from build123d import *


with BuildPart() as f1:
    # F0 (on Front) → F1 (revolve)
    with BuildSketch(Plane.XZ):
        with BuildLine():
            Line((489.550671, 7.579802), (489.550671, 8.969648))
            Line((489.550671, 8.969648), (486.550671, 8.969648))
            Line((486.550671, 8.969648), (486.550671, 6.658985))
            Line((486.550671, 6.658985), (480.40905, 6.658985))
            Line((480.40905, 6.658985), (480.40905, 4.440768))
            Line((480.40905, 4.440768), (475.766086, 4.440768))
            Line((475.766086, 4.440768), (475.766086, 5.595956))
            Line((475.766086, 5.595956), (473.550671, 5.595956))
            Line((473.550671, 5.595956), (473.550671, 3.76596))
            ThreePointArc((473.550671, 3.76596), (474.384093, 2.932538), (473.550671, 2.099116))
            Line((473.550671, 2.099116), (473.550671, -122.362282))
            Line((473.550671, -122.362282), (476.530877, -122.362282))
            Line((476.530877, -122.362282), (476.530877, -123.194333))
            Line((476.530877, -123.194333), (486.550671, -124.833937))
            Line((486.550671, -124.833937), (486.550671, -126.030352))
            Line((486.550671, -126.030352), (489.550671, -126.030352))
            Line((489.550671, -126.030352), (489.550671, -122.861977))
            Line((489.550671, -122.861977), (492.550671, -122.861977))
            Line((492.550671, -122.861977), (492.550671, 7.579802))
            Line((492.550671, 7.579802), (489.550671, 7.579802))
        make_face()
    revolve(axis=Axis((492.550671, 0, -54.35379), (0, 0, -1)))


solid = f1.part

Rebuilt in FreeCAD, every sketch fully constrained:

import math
import FreeCAD as App
import Part
import Sketcher

doc = App.newDocument("Part")
params = doc.addObject("Spreadsheet::Sheet", "Params")
for row, (alias, value) in enumerate([
    ("sketch1_width", "3 mm"),
    ("sketch1_height", "135 mm"),
    ("revolution_angle", "360 deg"),
], start=1):
    params.set(f"A{row}", alias)
    params.set(f"B{row}", "=" + value)
    params.setAlias(f"B{row}", alias)

body = doc.addObject("PartDesign::Body", "Body")

# Sketch on XZ plane
sketch1 = body.newObject("Sketcher::SketchObject", "Sketch")
sketch1.AttachmentSupport = (doc.getObject("XZ_Plane"), [""])
sketch1.MapMode = "FlatFace"
sketch1.addGeometry([
    Part.LineSegment(App.Vector(489.6, 7.6, 0), App.Vector(489.6, 9, 0)),  # 0
    Part.LineSegment(App.Vector(489.6, 9, 0), App.Vector(486.6, 9, 0)),  # 1
    Part.LineSegment(App.Vector(486.6, 9, 0), App.Vector(486.6, 6.7, 0)),  # 2
    Part.LineSegment(App.Vector(486.6, 6.7, 0), App.Vector(480.4, 6.7, 0)),  # 3
    Part.LineSegment(App.Vector(480.4, 6.7, 0), App.Vector(480.4, 4.4, 0)),  # 4
    Part.LineSegment(App.Vector(480.4, 4.4, 0), App.Vector(475.8, 4.4, 0)),  # 5
    Part.LineSegment(App.Vector(475.8, 4.4, 0), App.Vector(475.8, 5.6, 0)),  # 6
    Part.LineSegment(App.Vector(475.8, 5.6, 0), App.Vector(473.6, 5.6, 0)),  # 7
    Part.LineSegment(App.Vector(473.6, 5.6, 0), App.Vector(473.6, 3.8, 0)),  # 8
    Part.ArcOfCircle(Part.Circle(App.Vector(473.6, 2.9, 0), App.Vector(0, 0, 1), 0.8), math.radians(-90), math.radians(90)),  # 9
    Part.LineSegment(App.Vector(473.6, 2.1, 0), App.Vector(473.6, -122.4, 0)),  # 10
    Part.LineSegment(App.Vector(473.6, -122.4, 0), App.Vector(476.5, -122.4, 0)),  # 11
    Part.LineSegment(App.Vector(476.5, -122.4, 0), App.Vector(476.5, -123.2, 0)),  # 12
    Part.LineSegment(App.Vector(476.5, -123.2, 0), App.Vector(486.6, -124.8, 0)),  # 13
    Part.LineSegment(App.Vector(486.6, -124.8, 0), App.Vector(486.6, -126, 0)),  # 14
    Part.LineSegment(App.Vector(486.6, -126, 0), App.Vector(489.6, -126, 0)),  # 15
    Part.LineSegment(App.Vector(489.6, -126, 0), App.Vector(489.6, -122.9, 0)),  # 16
    Part.LineSegment(App.Vector(489.6, -122.9, 0), App.Vector(492.6, -122.9, 0)),  # 17
    Part.LineSegment(App.Vector(492.6, -122.9, 0), App.Vector(492.6, 7.6, 0)),  # 18
    Part.LineSegment(App.Vector(492.6, 7.6, 0), App.Vector(489.6, 7.6, 0)),  # 19
], False)
sketch1.addGeometry(Part.LineSegment(App.Vector(492.6, 9, 0), App.Vector(492.6, -126, 0)), True)  # axis
sketch1.addConstraint([
    Sketcher.Constraint("Coincident", 0, 2, 1, 1),
    Sketcher.Constraint("Coincident", 1, 2, 2, 1),
    Sketcher.Constraint("Coincident", 2, 2, 3, 1),
    Sketcher.Constraint("Coincident", 3, 2, 4, 1),
    Sketcher.Constraint("Coincident", 4, 2, 5, 1),
    Sketcher.Constraint("Coincident", 5, 2, 6, 1),
    Sketcher.Constraint("Coincident", 6, 2, 7, 1),
    Sketcher.Constraint("Coincident", 7, 2, 8, 1),
    Sketcher.Constraint("Coincident", 8, 2, 9, 2),
    Sketcher.Constraint("Coincident", 9, 1, 10, 1),
    Sketcher.Constraint("Coincident", 10, 2, 11, 1),
    Sketcher.Constraint("Coincident", 11, 2, 12, 1),
    Sketcher.Constraint("Coincident", 12, 2, 13, 1),
    Sketcher.Constraint("Coincident", 13, 2, 14, 1),
    Sketcher.Constraint("Coincident", 14, 2, 15, 1),
    Sketcher.Constraint("Coincident", 15, 2, 16, 1),
    Sketcher.Constraint("Coincident", 16, 2, 17, 1),
    Sketcher.Constraint("Coincident", 17, 2, 18, 1),
    Sketcher.Constraint("Coincident", 18, 2, 19, 1),
    Sketcher.Constraint("Coincident", 19, 2, 0, 1),
    Sketcher.Constraint("Vertical", 0),
    Sketcher.Constraint("Horizontal", 1),
    Sketcher.Constraint("Vertical", 2),
    Sketcher.Constraint("Horizontal", 3),
    Sketcher.Constraint("Vertical", 4),
    Sketcher.Constraint("Horizontal", 5),
    Sketcher.Constraint("Vertical", 6),
    Sketcher.Constraint("Horizontal", 7),
    Sketcher.Constraint("Vertical", 8),
    Sketcher.Constraint("Vertical", 10),
    Sketcher.Constraint("Horizontal", 11),
    Sketcher.Constraint("Vertical", 12),
    Sketcher.Constraint("Vertical", 14),
    Sketcher.Constraint("Horizontal", 15),
    Sketcher.Constraint("Vertical", 16),
    Sketcher.Constraint("Horizontal", 17),
    Sketcher.Constraint("Vertical", 18),
    Sketcher.Constraint("Horizontal", 19),
    Sketcher.Constraint("Vertical", 20),
    Sketcher.Constraint("Horizontal", 1, 2, 20, 1),
    Sketcher.Constraint("Horizontal", 15, 2, 20, 2),
    Sketcher.Constraint("Vertical", 9, 3, 7, 2),
    Sketcher.Constraint("Vertical", 8, 2, 9, 1),
    Sketcher.Constraint("Vertical", 2, 2, 13, 2),
    Sketcher.Constraint("Vertical", 0, 2, 15, 2),
    Sketcher.Constraint("Vertical", 18, 2, 20, 1),
    Sketcher.Constraint("Equal", 15, 17),
    Sketcher.Constraint("DistanceX", 1, 2, 1, 1, 3.0),
    Sketcher.Constraint("DistanceY", 20, 2, 20, 1, 135.0),
    Sketcher.Constraint("DistanceX", 9, 3, 0, 2, 16.0),
    Sketcher.Constraint("Radius", 9, 0.833422),
    Sketcher.Constraint("DistanceX", 3, 2, 3, 1, 6.141621),
    Sketcher.Constraint("DistanceY", 12, 2, 12, 1, 0.832051),
    Sketcher.Constraint("DistanceY", 18, 1, 18, 2, 130.441779),
    Sketcher.Constraint("DistanceX", 5, 2, 5, 1, 4.642964),
    Sketcher.Constraint("DistanceX", 11, 1, 11, 2, 2.980206),
    Sketcher.Constraint("DistanceY", 0, 1, 0, 2, 1.389846),
    Sketcher.Constraint("DistanceY", 2, 2, 2, 1, 2.310663),
    Sketcher.Constraint("DistanceY", 4, 2, 4, 1, 2.218217),
    Sketcher.Constraint("DistanceY", 6, 1, 6, 2, 1.155188),
    Sketcher.Constraint("DistanceY", 8, 2, 8, 1, 1.829996),
    Sketcher.Constraint("DistanceY", 10, 2, 10, 1, 124.461398),
    Sketcher.Constraint("DistanceY", 14, 2, 14, 1, 1.196415),
    Sketcher.Constraint("DistanceX", -1, 1, 9, 3, 473.550671),
    Sketcher.Constraint("DistanceY", -1, 1, 9, 3, 2.932538),
])
sketch1.setExpression("Constraints[47]", "Params.sketch1_width")
sketch1.setExpression("Constraints[48]", "Params.sketch1_height")
revolution = body.newObject("PartDesign::Revolution", "Revolution")
revolution.Profile = sketch1
revolution.ReferenceAxis = (sketch1, ["Axis0"])
revolution.setExpression("Angle", "Params.revolution_angle")

doc.recompute()
